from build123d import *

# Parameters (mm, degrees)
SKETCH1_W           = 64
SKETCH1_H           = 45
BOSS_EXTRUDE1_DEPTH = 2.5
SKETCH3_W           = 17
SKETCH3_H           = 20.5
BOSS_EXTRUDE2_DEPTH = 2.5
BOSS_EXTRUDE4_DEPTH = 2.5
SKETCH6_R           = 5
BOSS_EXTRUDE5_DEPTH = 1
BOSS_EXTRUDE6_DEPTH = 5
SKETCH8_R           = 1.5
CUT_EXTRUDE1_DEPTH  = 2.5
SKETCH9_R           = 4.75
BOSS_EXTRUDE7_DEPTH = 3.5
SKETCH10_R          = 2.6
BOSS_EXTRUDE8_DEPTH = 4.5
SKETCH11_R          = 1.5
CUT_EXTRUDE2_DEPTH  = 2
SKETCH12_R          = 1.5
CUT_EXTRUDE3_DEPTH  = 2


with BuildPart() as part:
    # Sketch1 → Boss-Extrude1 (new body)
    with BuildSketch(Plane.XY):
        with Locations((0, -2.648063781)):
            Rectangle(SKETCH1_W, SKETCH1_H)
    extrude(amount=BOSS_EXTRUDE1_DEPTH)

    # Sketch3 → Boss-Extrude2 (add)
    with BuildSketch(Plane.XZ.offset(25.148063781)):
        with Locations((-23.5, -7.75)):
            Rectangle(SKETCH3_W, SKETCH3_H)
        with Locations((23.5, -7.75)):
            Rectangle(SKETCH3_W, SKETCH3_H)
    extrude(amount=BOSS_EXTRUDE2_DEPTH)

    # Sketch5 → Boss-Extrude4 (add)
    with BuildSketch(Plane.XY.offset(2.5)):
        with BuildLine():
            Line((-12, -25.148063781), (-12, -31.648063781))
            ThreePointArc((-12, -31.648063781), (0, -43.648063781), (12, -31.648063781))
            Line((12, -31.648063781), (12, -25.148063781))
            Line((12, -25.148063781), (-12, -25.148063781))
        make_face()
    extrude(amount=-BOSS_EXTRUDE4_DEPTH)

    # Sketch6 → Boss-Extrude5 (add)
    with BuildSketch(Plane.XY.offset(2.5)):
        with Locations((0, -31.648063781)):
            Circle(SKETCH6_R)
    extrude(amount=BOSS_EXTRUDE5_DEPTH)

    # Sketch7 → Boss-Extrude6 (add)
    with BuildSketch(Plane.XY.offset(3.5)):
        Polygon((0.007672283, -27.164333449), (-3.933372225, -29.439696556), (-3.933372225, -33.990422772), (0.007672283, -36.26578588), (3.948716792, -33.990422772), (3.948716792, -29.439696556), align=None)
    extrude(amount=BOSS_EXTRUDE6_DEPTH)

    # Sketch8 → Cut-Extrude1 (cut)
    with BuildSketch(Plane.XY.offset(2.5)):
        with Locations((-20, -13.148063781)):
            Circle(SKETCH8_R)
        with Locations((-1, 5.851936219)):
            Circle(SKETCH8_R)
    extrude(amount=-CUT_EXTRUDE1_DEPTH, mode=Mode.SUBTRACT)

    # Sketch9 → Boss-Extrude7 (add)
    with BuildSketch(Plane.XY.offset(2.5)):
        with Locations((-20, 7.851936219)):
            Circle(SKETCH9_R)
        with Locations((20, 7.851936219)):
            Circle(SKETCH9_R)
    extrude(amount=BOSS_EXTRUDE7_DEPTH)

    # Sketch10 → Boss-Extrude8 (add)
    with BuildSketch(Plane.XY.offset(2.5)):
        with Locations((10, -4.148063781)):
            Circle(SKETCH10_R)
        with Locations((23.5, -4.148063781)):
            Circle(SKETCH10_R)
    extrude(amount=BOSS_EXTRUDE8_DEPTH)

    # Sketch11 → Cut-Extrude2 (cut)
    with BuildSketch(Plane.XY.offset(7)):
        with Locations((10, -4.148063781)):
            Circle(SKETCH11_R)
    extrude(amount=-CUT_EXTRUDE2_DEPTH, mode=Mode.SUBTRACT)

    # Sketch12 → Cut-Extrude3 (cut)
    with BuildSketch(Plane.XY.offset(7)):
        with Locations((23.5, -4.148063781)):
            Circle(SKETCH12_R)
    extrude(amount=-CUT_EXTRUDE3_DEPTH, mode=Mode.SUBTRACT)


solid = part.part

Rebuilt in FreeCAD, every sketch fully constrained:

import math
import FreeCAD as App
import Part
import Sketcher
Q = App.Units.Quantity


def add_polygon(sketch, points):
    """Adds a closed chain of lines whose ends are joined by coincident constraints."""
    first, n = sketch.GeometryCount, len(points)
    for a, b in zip(points, points[1:] + points[:1]):
        sketch.addGeometry(Part.LineSegment(App.Vector(*a, 0), App.Vector(*b, 0)), False)
    for i in range(n):
        sketch.addConstraint(Sketcher.Constraint("Coincident", first + i, 2, first + (i + 1) % n, 1))

doc = App.newDocument("Part")
body = doc.addObject("PartDesign::Body", "Body")

# Sketch on XY plane
sketch1 = body.newObject("Sketcher::SketchObject", "Sketch")
sketch1.AttachmentSupport = (doc.getObject("XY_Plane"), [""])
sketch1.MapMode = "FlatFace"
add_polygon(sketch1, [(-32, 20), (-32, -25), (32, -25), (32, 20)])  # lines 0-3
sketch1.addConstraint(Sketcher.Constraint("Vertical", 0))
sketch1.addConstraint(Sketcher.Constraint("Horizontal", 1))
sketch1.addConstraint(Sketcher.Constraint("Vertical", 2))
sketch1.addConstraint(Sketcher.Constraint("Horizontal", 3))
sketch1.addConstraint(Sketcher.Constraint("DistanceX", 1, 1, 1, 2, Q("64 mm")))
sketch1.addConstraint(Sketcher.Constraint("DistanceY", 0, 2, 0, 1, Q("45 mm")))
sketch1.addConstraint(Sketcher.Constraint("DistanceX", 0, 2, -1, 1, Q("32 mm")))
sketch1.addConstraint(Sketcher.Constraint("DistanceY", 0, 2, -1, 1, Q("25.148064 mm")))
pad1 = body.newObject("PartDesign::Pad", "Pad")
pad1.Profile = sketch1
pad1.Length = 2.5

# Sketch on XZ plane
sketch2 = body.newObject("Sketcher::SketchObject", "Sketch001")
sketch2.AttachmentSupport = (doc.getObject("XZ_Plane"), [""])
sketch2.MapMode = "FlatFace"
sketch2.AttachmentOffset = App.Placement(App.Vector(0, 0, 25.148064), App.Rotation())
add_polygon(sketch2, [(-32, 2), (-32, -18), (-15, -18), (-15, 2)])  # lines 0-3
add_polygon(sketch2, [(15, 2), (15, -18), (32, -18), (32, 2)])  # lines 4-7
sketch2.addConstraint(Sketcher.Constraint("Vertical", 0))
sketch2.addConstraint(Sketcher.Constraint("Horizontal", 1))
sketch2.addConstraint(Sketcher.Constraint("Vertical", 2))
sketch2.addConstraint(Sketcher.Constraint("Horizontal", 3))
sketch2.addConstraint(Sketcher.Constraint("Vertical", 4))
sketch2.addConstraint(Sketcher.Constraint("Horizontal", 5))
sketch2.addConstraint(Sketcher.Constraint("Vertical", 6))
sketch2.addConstraint(Sketcher.Constraint("Horizontal", 7))
sketch2.addConstraint(Sketcher.Constraint("Symmetric", 1, 2, 4, 2, -2))
sketch2.addConstraint(Sketcher.Constraint("Symmetric", 3, 2, 6, 2, -2))
sketch2.addConstraint(Sketcher.Constraint("DistanceX", 1, 1, 1, 2, Q("17 mm")))
sketch2.addConstraint(Sketcher.Constraint("DistanceY", 0, 2, 0, 1, Q("20.5 mm")))
sketch2.addConstraint(Sketcher.Constraint("DistanceX", 0, 2, -1, 1, Q("32 mm")))
sketch2.addConstraint(Sketcher.Constraint("DistanceY", 0, 2, -1, 1, Q("18 mm")))
pad2 = body.newObject("PartDesign::Pad", "Pad001")
pad2.Profile = sketch2
pad2.Length = 2.5

# Sketch on XY plane
sketch3 = body.newObject("Sketcher::SketchObject", "Sketch002")
sketch3.AttachmentSupport = (doc.getObject("XY_Plane"), [""])
sketch3.MapMode = "FlatFace"
sketch3.AttachmentOffset = App.Placement(App.Vector(0, 0, 2.5), App.Rotation())
sketch3.addGeometry(Part.LineSegment(App.Vector(-12, -25, 0), App.Vector(-12, -32, 0)), False)
sketch3.addGeometry(Part.ArcOfCircle(Part.Circle(App.Vector(0, -32, 0), App.Vector(0, 0, 1), 12), math.radians(180), math.radians(360)), False)
sketch3.addGeometry(Part.LineSegment(App.Vector(12, -32, 0), App.Vector(12, -25, 0)), False)
sketch3.addGeometry(Part.LineSegment(App.Vector(12, -25, 0), App.Vector(-12, -25, 0)), False)
sketch3.addConstraint(Sketcher.Constraint("Tangent", 0, 2, 1, 1))
sketch3.addConstraint(Sketcher.Constraint("Tangent", 1, 2, 2, 1))
sketch3.addConstraint(Sketcher.Constraint("Coincident", 2, 2, 3, 1))
sketch3.addConstraint(Sketcher.Constraint("Coincident", 3, 2, 0, 1))
sketch3.addConstraint(Sketcher.Constraint("Vertical", 0))
sketch3.addConstraint(Sketcher.Constraint("Vertical", 2))
sketch3.addConstraint(Sketcher.Constraint("Horizontal", 3))
sketch3.addConstraint(Sketcher.Constraint("PointOnObject", 1, 3, -2))
sketch3.addConstraint(Sketcher.Constraint("Radius", 1, Q("12 mm")))
sketch3.addConstraint(Sketcher.Constraint("DistanceY", 0, 2, 0, 1, Q("6.5 mm")))
sketch3.addConstraint(Sketcher.Constraint("DistanceY", 1, 3, -1, 1, Q("31.648064 mm")))
pad3 = body.newObject("PartDesign::Pad", "Pad002")
pad3.Profile = sketch3
pad3.Length = 2.5
pad3.Reversed = True

# Sketch on XY plane
sketch4 = body.newObject("Sketcher::SketchObject", "Sketch003")
sketch4.AttachmentSupport = (doc.getObject("XY_Plane"), [""])
sketch4.MapMode = "FlatFace"
sketch4.AttachmentOffset = App.Placement(App.Vector(0, 0, 2.5), App.Rotation())
sketch4.addGeometry(Part.Circle(App.Vector(0, -32, 0), App.Vector(0, 0, 1), 5), False)
sketch4.addConstraint(Sketcher.Constraint("PointOnObject", 0, 3, -2))
sketch4.addConstraint(Sketcher.Constraint("Diameter", 0, Q("10 mm")))
sketch4.addConstraint(Sketcher.Constraint("DistanceY", 0, 3, -1, 1, Q("31.648064 mm")))
pad4 = body.newObject("PartDesign::Pad", "Pad003")
pad4.Profile = sketch4
pad4.Length = 1

# Sketch on XY plane
sketch5 = body.newObject("Sketcher::SketchObject", "Sketch004")
sketch5.AttachmentSupport = (doc.getObject("XY_Plane"), [""])
sketch5.MapMode = "FlatFace"
sketch5.AttachmentOffset = App.Placement(App.Vector(0, 0, 3.5), App.Rotation())
add_polygon(sketch5, [(0, -27.2), (-3.9, -29.4), (-3.9, -34), (0, -36.3), (3.9, -34), (3.9, -29.4)])  # lines 0-5
sketch5.addConstraint(Sketcher.Constraint("Vertical", 1))
sketch5.addConstraint(Sketcher.Constraint("Vertical", 4))
sketch5.addConstraint(Sketcher.Constraint("Parallel", 0, 3))
sketch5.addConstraint(Sketcher.Constraint("Parallel", 2, 5))
sketch5.addConstraint(Sketcher.Constraint("Horizontal", 1, 2, 3, 2))
sketch5.addConstraint(Sketcher.Constraint("Horizontal", 0, 2, 4, 2))
sketch5.addConstraint(Sketcher.Constraint("Vertical", 2, 2, 5, 2))
sketch5.addConstraint(Sketcher.Constraint("Angle", 0, Q("-150 deg")))
sketch5.addConstraint(Sketcher.Constraint("DistanceY", 1, 2, 1, 1, Q("4.550726 mm")))
sketch5.addConstraint(Sketcher.Constraint("DistanceY", 2, 2, 0, 2, Q("6.826089 mm")))
sketch5.addConstraint(Sketcher.Constraint("DistanceX", 0, 2, -1, 1, Q("3.933372 mm")))
sketch5.addConstraint(Sketcher.Constraint("DistanceY", 0, 2, -1, 1, Q("29.439697 mm")))
pad5 = body.newObject("PartDesign::Pad", "Pad004")
pad5.Profile = sketch5
pad5.Length = 5

# Sketch on XY plane
sketch6 = body.newObject("Sketcher::SketchObject", "Sketch005")
sketch6.AttachmentSupport = (doc.getObject("XY_Plane"), [""])
sketch6.MapMode = "FlatFace"
sketch6.AttachmentOffset = App.Placement(App.Vector(0, 0, 2.5), App.Rotation())
sketch6.addGeometry(Part.Circle(App.Vector(-20, -13.1, 0), App.Vector(0, 0, 1), 1.5), False)
sketch6.addGeometry(Part.Circle(App.Vector(-1, 5.9, 0), App.Vector(0, 0, 1), 1.5), False)
sketch6.addConstraint(Sketcher.Constraint("Equal", 0, 1))
sketch6.addConstraint(Sketcher.Constraint("Diameter", 0, Q("3 mm")))
sketch6.addConstraint(Sketcher.Constraint("DistanceX", 0, 3, -1, 1, Q("20 mm")))
sketch6.addConstraint(Sketcher.Constraint("DistanceX", 1, 3, -1, 1, Q("1 mm")))
sketch6.addConstraint(Sketcher.Constraint("DistanceY", 0, 3, 1, 3, Q("19 mm")))
sketch6.addConstraint(Sketcher.Constraint("DistanceY", 0, 3, -1, 1, Q("13.148064 mm")))
pocket1 = body.newObject("PartDesign::Pocket", "Pocket")
pocket1.Profile = sketch6
pocket1.Length = 2.5

# Sketch on XY plane
sketch7 = body.newObject("Sketcher::SketchObject", "Sketch006")
sketch7.AttachmentSupport = (doc.getObject("XY_Plane"), [""])
sketch7.MapMode = "FlatFace"
sketch7.AttachmentOffset = App.Placement(App.Vector(0, 0, 2.5), App.Rotation())
sketch7.addGeometry(Part.Circle(App.Vector(-20, 7.9, 0), App.Vector(0, 0, 1), 4.8), False)
sketch7.addGeometry(Part.Circle(App.Vector(20, 7.9, 0), App.Vector(0, 0, 1), 4.8), False)
sketch7.addConstraint(Sketcher.Constraint("Equal", 0, 1))
sketch7.addConstraint(Sketcher.Constraint("Symmetric", 0, 3, 1, 3, -2))
sketch7.addConstraint(Sketcher.Constraint("Diameter", 0, Q("9.5 mm")))
sketch7.addConstraint(Sketcher.Constraint("DistanceX", 0, 3, -1, 1, Q("20 mm")))
sketch7.addConstraint(Sketcher.Constraint("DistanceY", -1, 1, 0, 3, Q("7.851936 mm")))
pad6 = body.newObject("PartDesign::Pad", "Pad005")
pad6.Profile = sketch7
pad6.Length = 3.5

# Sketch on XY plane
sketch8 = body.newObject("Sketcher::SketchObject", "Sketch007")
sketch8.AttachmentSupport = (doc.getObject("XY_Plane"), [""])
sketch8.MapMode = "FlatFace"
sketch8.AttachmentOffset = App.Placement(App.Vector(0, 0, 2.5), App.Rotation())
sketch8.addGeometry(Part.Circle(App.Vector(10, -4.1, 0), App.Vector(0, 0, 1), 2.6), False)
sketch8.addGeometry(Part.Circle(App.Vector(23.5, -4.1, 0), App.Vector(0, 0, 1), 2.6), False)
sketch8.addConstraint(Sketcher.Constraint("Equal", 0, 1))
sketch8.addConstraint(Sketcher.Constraint("Horizontal", 0, 3, 1, 3))
sketch8.addConstraint(Sketcher.Constraint("Diameter", 0, Q("5.2 mm")))
sketch8.addConstraint(Sketcher.Constraint("DistanceX", -1, 1, 0, 3, Q("10 mm")))
sketch8.addConstraint(Sketcher.Constraint("DistanceX", -1, 1, 1, 3, Q("23.5 mm")))
sketch8.addConstraint(Sketcher.Constraint("DistanceY", 0, 3, -1, 1, Q("4.148064 mm")))
pad7 = body.newObject("PartDesign::Pad", "Pad006")
pad7.Profile = sketch8
pad7.Length = 4.5

# Sketch on XY plane
sketch9 = body.newObject("Sketcher::SketchObject", "Sketch008")
sketch9.AttachmentSupport = (doc.getObject("XY_Plane"), [""])
sketch9.MapMode = "FlatFace"
sketch9.AttachmentOffset = App.Placement(App.Vector(0, 0, 7), App.Rotation())
sketch9.addGeometry(Part.Circle(App.Vector(10, -4.1, 0), App.Vector(0, 0, 1), 1.5), False)
sketch9.addConstraint(Sketcher.Constraint("Diameter", 0, Q("3 mm")))
sketch9.addConstraint(Sketcher.Constraint("DistanceX", -1, 1, 0, 3, Q("10 mm")))
sketch9.addConstraint(Sketcher.Constraint("DistanceY", 0, 3, -1, 1, Q("4.148064 mm")))
pocket2 = body.newObject("PartDesign::Pocket", "Pocket001")
pocket2.Profile = sketch9
pocket2.Length = 2

# Sketch on XY plane
sketch10 = body.newObject("Sketcher::SketchObject", "Sketch009")
sketch10.AttachmentSupport = (doc.getObject("XY_Plane"), [""])
sketch10.MapMode = "FlatFace"
sketch10.AttachmentOffset = App.Placement(App.Vector(0, 0, 7), App.Rotation())
sketch10.addGeometry(Part.Circle(App.Vector(23.5, -4.1, 0), App.Vector(0, 0, 1), 1.5), False)
sketch10.addConstraint(Sketcher.Constraint("Diameter", 0, Q("3 mm")))
sketch10.addConstraint(Sketcher.Constraint("DistanceX", -1, 1, 0, 3, Q("23.5 mm")))
sketch10.addConstraint(Sketcher.Constraint("DistanceY", 0, 3, -1, 1, Q("4.148064 mm")))
pocket3 = body.newObject("PartDesign::Pocket", "Pocket002")
pocket3.Profile = sketch10
pocket3.Length = 2

doc.recompute()
